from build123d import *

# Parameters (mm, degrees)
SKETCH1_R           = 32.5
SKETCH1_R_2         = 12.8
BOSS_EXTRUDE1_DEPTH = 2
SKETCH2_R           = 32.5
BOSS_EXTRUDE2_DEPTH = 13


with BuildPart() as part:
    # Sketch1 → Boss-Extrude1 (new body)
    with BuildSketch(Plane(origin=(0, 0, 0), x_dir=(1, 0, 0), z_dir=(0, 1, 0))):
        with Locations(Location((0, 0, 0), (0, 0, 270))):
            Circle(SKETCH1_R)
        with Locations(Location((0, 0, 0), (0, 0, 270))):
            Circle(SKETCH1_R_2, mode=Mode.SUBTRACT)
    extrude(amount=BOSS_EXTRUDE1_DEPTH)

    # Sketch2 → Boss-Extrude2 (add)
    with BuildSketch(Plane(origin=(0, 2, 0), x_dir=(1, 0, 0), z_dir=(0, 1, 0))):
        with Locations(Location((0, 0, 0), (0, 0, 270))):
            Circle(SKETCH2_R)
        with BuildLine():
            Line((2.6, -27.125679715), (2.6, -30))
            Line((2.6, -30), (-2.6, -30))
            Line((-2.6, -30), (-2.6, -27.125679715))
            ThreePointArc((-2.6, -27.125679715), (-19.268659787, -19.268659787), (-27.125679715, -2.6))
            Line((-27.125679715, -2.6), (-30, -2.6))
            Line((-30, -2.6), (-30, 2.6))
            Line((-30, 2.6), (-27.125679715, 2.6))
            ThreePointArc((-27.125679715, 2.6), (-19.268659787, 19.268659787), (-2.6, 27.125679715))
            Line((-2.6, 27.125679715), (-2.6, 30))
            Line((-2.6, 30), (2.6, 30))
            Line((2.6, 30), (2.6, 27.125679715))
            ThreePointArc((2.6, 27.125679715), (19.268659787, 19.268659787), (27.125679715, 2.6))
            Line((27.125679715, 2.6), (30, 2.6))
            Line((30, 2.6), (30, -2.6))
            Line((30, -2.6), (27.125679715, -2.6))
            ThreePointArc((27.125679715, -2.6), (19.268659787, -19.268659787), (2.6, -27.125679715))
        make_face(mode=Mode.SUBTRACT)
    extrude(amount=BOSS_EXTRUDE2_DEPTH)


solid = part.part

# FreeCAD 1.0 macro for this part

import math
import FreeCAD as App
import Part
import Sketcher
Q = App.Units.Quantity

doc = App.newDocument("Part")
body = doc.addObject("PartDesign::Body", "Body")

sketch1 = doc.addObject("Sketcher::SketchObject", "Sketch")
body.addObject(sketch1)
sketch1.AttachmentSupport = (doc.XZ_Plane, [""])
sketch1.MapMode = "FlatFace"
sketch1.addGeometry(Part.Circle(App.Vector(0, 0, 0), App.Vector(0, 0, 1), 32), False)
sketch1.addGeometry(Part.Circle(App.Vector(0, 0, 0), App.Vector(0, 0, 1), 13), False)
sketch1.addConstraint(Sketcher.Constraint("Coincident", 0, 3, -1, 1))
sketch1.addConstraint(Sketcher.Constraint("Coincident", 1, 3, -1, 1))
sketch1.addConstraint(Sketcher.Constraint("Diameter", 0, Q("65 mm")))
sketch1.addConstraint(Sketcher.Constraint("Diameter", 1, Q("25.6 mm")))
pad1 = doc.addObject("PartDesign::Pad", "Pad")
body.addObject(pad1)
pad1.Profile = sketch1
pad1.Length = 2
pad1.Reversed = True

sketch2 = doc.addObject("Sketcher::SketchObject", "Sketch001")
body.addObject(sketch2)
sketch2.AttachmentSupport = (doc.XZ_Plane, [""])
sketch2.MapMode = "FlatFace"
sketch2.AttachmentOffset = App.Placement(App.Vector(0, 0, -2), App.Rotation())
sketch2.addGeometry(Part.Circle(App.Vector(0, 0, 0), App.Vector(0, 0, 1), 32.5), False)
sketch2.addGeometry(Part.ArcOfCircle(Part.Circle(App.Vector(0, 0, 0), App.Vector(0, 0, 1), 27.3), math.radians(5), math.radians(85)), False)
sketch2.addGeometry(Part.LineSegment(App.Vector(2.6, 27.1, 0), App.Vector(2.6, 30, 0)), False)
sketch2.addGeometry(Part.LineSegment(App.Vector(2.6, 30, 0), App.Vector(-2.6, 30, 0)), False)
sketch2.addGeometry(Part.LineSegment(App.Vector(-2.6, 30, 0), App.Vector(-2.6, 27.1, 0)), False)
sketch2.addGeometry(Part.ArcOfCircle(Part.Circle(App.Vector(0, 0, 0), App.Vector(0, 0, 1), 27.3), math.radians(95), math.radians(175)), False)
sketch2.addGeometry(Part.LineSegment(App.Vector(-27.1, 2.6, 0), App.Vector(-30, 2.6, 0)), False)
sketch2.addGeometry(Part.LineSegment(App.Vector(-30, 2.6, 0), App.Vector(-30, -2.6, 0)), False)
sketch2.addGeometry(Part.LineSegment(App.Vector(-30, -2.6, 0), App.Vector(-27.1, -2.6, 0)), False)
sketch2.addGeometry(Part.ArcOfCircle(Part.Circle(App.Vector(0, 0, 0), App.Vector(0, 0, 1), 27.3), math.radians(-175), math.radians(-95)), False)
sketch2.addGeometry(Part.LineSegment(App.Vector(-2.6, -27.1, 0), App.Vector(-2.6, -30, 0)), False)
sketch2.addGeometry(Part.LineSegment(App.Vector(-2.6, -30, 0), App.Vector(2.6, -30, 0)), False)
sketch2.addGeometry(Part.LineSegment(App.Vector(2.6, -30, 0), App.Vector(2.6, -27.1, 0)), False)
sketch2.addGeometry(Part.ArcOfCircle(Part.Circle(App.Vector(0, 0, 0), App.Vector(0, 0, 1), 27.3), math.radians(-85), math.radians(-5)), False)
sketch2.addGeometry(Part.LineSegment(App.Vector(27.1, -2.6, 0), App.Vector(30, -2.6, 0)), False)
sketch2.addGeometry(Part.LineSegment(App.Vector(30, -2.6, 0), App.Vector(30, 2.6, 0)), False)
sketch2.addGeometry(Part.LineSegment(App.Vector(30, 2.6, 0), App.Vector(27.1, 2.6, 0)), False)
sketch2.addConstraint(Sketcher.Constraint("Coincident", 1, 2, 2, 1))
sketch2.addConstraint(Sketcher.Constraint("Coincident", 2, 2, 3, 1))
sketch2.addConstraint(Sketcher.Constraint("Coincident", 3, 2, 4, 1))
sketch2.addConstraint(Sketcher.Constraint("Coincident", 4, 2, 5, 1))
sketch2.addConstraint(Sketcher.Constraint("Coincident", 5, 2, 6, 1))
sketch2.addConstraint(Sketcher.Constraint("Coincident", 6, 2, 7, 1))
sketch2.addConstraint(Sketcher.Constraint("Coincident", 7, 2, 8, 1))
sketch2.addConstraint(Sketcher.Constraint("Coincident", 8, 2, 9, 1))
sketch2.addConstraint(Sketcher.Constraint("Coincident", 9, 2, 10, 1))
sketch2.addConstraint(Sketcher.Constraint("Coincident", 10, 2, 11, 1))
sketch2.addConstraint(Sketcher.Constraint("Coincident", 11, 2, 12, 1))
sketch2.addConstraint(Sketcher.Constraint("Coincident", 12, 2, 13, 1))
sketch2.addConstraint(Sketcher.Constraint("Coincident", 13, 2, 14, 1))
sketch2.addConstraint(Sketcher.Constraint("Coincident", 14, 2, 15, 1))
sketch2.addConstraint(Sketcher.Constraint("Coincident", 15, 2, 16, 1))
sketch2.addConstraint(Sketcher.Constraint("Coincident", 16, 2, 1, 1))
sketch2.addConstraint(Sketcher.Constraint("Vertical", 2))
sketch2.addConstraint(Sketcher.Constraint("Horizontal", 3))
sketch2.addConstraint(Sketcher.Constraint("Vertical", 4))
sketch2.addConstraint(Sketcher.Constraint("Horizontal", 6))
sketch2.addConstraint(Sketcher.Constraint("Vertical", 7))
sketch2.addConstraint(Sketcher.Constraint("Horizontal", 8))
sketch2.addConstraint(Sketcher.Constraint("Vertical", 10))
sketch2.addConstraint(Sketcher.Constraint("Horizontal", 11))
sketch2.addConstraint(Sketcher.Constraint("Vertical", 12))
sketch2.addConstraint(Sketcher.Constraint("Horizontal", 14))
sketch2.addConstraint(Sketcher.Constraint("Vertical", 15))
sketch2.addConstraint(Sketcher.Constraint("Horizontal", 16))
sketch2.addConstraint(Sketcher.Constraint("Coincident", 0, 3, -1, 1))
sketch2.addConstraint(Sketcher.Constraint("Coincident", 1, 3, -1, 1))
sketch2.addConstraint(Sketcher.Constraint("Coincident", 5, 3, -1, 1))
sketch2.addConstraint(Sketcher.Constraint("Coincident", 9, 3, -1, 1))
sketch2.addConstraint(Sketcher.Constraint("Coincident", 13, 3, -1, 1))
sketch2.addConstraint(Sketcher.Constraint("Equal", 1, 5))
sketch2.addConstraint(Sketcher.Constraint("Equal", 5, 9))
sketch2.addConstraint(Sketcher.Constraint("Equal", 9, 13))
sketch2.addConstraint(Sketcher.Constraint("Symmetric", 2, 2, 10, 2, -1, 1))
sketch2.addConstraint(Sketcher.Constraint("Symmetric", 6, 2, 14, 2, -1, 1))
sketch2.addConstraint(Sketcher.Constraint("Horizontal", 1, 2, 4, 2))
sketch2.addConstraint(Sketcher.Constraint("Horizontal", 9, 2, 12, 2))
sketch2.addConstraint(Sketcher.Constraint("Horizontal", 8, 2, 13, 2))
sketch2.addConstraint(Sketcher.Constraint("Horizontal", 6, 2, 15, 2))
sketch2.addConstraint(Sketcher.Constraint("Equal", 16, 2))
sketch2.addConstraint(Sketcher.Constraint("Equal", 11, 7))
sketch2.addConstraint(Sketcher.Constraint("Diameter", 0, Q("65 mm")))
sketch2.addConstraint(Sketcher.Constraint("Radius", 1, Q("27.25 mm")))
sketch2.addConstraint(Sketcher.Constraint("DistanceX", 3, 2, 3, 1, Q("5.2 mm")))
sketch2.addConstraint(Sketcher.Constraint("DistanceY", -1, 1, 2, 2, Q("30 mm")))
pad2 = doc.addObject("PartDesign::Pad", "Pad001")
body.addObject(pad2)
pad2.Profile = sketch2
pad2.Length = 13
pad2.Reversed = True

doc.recompute()
